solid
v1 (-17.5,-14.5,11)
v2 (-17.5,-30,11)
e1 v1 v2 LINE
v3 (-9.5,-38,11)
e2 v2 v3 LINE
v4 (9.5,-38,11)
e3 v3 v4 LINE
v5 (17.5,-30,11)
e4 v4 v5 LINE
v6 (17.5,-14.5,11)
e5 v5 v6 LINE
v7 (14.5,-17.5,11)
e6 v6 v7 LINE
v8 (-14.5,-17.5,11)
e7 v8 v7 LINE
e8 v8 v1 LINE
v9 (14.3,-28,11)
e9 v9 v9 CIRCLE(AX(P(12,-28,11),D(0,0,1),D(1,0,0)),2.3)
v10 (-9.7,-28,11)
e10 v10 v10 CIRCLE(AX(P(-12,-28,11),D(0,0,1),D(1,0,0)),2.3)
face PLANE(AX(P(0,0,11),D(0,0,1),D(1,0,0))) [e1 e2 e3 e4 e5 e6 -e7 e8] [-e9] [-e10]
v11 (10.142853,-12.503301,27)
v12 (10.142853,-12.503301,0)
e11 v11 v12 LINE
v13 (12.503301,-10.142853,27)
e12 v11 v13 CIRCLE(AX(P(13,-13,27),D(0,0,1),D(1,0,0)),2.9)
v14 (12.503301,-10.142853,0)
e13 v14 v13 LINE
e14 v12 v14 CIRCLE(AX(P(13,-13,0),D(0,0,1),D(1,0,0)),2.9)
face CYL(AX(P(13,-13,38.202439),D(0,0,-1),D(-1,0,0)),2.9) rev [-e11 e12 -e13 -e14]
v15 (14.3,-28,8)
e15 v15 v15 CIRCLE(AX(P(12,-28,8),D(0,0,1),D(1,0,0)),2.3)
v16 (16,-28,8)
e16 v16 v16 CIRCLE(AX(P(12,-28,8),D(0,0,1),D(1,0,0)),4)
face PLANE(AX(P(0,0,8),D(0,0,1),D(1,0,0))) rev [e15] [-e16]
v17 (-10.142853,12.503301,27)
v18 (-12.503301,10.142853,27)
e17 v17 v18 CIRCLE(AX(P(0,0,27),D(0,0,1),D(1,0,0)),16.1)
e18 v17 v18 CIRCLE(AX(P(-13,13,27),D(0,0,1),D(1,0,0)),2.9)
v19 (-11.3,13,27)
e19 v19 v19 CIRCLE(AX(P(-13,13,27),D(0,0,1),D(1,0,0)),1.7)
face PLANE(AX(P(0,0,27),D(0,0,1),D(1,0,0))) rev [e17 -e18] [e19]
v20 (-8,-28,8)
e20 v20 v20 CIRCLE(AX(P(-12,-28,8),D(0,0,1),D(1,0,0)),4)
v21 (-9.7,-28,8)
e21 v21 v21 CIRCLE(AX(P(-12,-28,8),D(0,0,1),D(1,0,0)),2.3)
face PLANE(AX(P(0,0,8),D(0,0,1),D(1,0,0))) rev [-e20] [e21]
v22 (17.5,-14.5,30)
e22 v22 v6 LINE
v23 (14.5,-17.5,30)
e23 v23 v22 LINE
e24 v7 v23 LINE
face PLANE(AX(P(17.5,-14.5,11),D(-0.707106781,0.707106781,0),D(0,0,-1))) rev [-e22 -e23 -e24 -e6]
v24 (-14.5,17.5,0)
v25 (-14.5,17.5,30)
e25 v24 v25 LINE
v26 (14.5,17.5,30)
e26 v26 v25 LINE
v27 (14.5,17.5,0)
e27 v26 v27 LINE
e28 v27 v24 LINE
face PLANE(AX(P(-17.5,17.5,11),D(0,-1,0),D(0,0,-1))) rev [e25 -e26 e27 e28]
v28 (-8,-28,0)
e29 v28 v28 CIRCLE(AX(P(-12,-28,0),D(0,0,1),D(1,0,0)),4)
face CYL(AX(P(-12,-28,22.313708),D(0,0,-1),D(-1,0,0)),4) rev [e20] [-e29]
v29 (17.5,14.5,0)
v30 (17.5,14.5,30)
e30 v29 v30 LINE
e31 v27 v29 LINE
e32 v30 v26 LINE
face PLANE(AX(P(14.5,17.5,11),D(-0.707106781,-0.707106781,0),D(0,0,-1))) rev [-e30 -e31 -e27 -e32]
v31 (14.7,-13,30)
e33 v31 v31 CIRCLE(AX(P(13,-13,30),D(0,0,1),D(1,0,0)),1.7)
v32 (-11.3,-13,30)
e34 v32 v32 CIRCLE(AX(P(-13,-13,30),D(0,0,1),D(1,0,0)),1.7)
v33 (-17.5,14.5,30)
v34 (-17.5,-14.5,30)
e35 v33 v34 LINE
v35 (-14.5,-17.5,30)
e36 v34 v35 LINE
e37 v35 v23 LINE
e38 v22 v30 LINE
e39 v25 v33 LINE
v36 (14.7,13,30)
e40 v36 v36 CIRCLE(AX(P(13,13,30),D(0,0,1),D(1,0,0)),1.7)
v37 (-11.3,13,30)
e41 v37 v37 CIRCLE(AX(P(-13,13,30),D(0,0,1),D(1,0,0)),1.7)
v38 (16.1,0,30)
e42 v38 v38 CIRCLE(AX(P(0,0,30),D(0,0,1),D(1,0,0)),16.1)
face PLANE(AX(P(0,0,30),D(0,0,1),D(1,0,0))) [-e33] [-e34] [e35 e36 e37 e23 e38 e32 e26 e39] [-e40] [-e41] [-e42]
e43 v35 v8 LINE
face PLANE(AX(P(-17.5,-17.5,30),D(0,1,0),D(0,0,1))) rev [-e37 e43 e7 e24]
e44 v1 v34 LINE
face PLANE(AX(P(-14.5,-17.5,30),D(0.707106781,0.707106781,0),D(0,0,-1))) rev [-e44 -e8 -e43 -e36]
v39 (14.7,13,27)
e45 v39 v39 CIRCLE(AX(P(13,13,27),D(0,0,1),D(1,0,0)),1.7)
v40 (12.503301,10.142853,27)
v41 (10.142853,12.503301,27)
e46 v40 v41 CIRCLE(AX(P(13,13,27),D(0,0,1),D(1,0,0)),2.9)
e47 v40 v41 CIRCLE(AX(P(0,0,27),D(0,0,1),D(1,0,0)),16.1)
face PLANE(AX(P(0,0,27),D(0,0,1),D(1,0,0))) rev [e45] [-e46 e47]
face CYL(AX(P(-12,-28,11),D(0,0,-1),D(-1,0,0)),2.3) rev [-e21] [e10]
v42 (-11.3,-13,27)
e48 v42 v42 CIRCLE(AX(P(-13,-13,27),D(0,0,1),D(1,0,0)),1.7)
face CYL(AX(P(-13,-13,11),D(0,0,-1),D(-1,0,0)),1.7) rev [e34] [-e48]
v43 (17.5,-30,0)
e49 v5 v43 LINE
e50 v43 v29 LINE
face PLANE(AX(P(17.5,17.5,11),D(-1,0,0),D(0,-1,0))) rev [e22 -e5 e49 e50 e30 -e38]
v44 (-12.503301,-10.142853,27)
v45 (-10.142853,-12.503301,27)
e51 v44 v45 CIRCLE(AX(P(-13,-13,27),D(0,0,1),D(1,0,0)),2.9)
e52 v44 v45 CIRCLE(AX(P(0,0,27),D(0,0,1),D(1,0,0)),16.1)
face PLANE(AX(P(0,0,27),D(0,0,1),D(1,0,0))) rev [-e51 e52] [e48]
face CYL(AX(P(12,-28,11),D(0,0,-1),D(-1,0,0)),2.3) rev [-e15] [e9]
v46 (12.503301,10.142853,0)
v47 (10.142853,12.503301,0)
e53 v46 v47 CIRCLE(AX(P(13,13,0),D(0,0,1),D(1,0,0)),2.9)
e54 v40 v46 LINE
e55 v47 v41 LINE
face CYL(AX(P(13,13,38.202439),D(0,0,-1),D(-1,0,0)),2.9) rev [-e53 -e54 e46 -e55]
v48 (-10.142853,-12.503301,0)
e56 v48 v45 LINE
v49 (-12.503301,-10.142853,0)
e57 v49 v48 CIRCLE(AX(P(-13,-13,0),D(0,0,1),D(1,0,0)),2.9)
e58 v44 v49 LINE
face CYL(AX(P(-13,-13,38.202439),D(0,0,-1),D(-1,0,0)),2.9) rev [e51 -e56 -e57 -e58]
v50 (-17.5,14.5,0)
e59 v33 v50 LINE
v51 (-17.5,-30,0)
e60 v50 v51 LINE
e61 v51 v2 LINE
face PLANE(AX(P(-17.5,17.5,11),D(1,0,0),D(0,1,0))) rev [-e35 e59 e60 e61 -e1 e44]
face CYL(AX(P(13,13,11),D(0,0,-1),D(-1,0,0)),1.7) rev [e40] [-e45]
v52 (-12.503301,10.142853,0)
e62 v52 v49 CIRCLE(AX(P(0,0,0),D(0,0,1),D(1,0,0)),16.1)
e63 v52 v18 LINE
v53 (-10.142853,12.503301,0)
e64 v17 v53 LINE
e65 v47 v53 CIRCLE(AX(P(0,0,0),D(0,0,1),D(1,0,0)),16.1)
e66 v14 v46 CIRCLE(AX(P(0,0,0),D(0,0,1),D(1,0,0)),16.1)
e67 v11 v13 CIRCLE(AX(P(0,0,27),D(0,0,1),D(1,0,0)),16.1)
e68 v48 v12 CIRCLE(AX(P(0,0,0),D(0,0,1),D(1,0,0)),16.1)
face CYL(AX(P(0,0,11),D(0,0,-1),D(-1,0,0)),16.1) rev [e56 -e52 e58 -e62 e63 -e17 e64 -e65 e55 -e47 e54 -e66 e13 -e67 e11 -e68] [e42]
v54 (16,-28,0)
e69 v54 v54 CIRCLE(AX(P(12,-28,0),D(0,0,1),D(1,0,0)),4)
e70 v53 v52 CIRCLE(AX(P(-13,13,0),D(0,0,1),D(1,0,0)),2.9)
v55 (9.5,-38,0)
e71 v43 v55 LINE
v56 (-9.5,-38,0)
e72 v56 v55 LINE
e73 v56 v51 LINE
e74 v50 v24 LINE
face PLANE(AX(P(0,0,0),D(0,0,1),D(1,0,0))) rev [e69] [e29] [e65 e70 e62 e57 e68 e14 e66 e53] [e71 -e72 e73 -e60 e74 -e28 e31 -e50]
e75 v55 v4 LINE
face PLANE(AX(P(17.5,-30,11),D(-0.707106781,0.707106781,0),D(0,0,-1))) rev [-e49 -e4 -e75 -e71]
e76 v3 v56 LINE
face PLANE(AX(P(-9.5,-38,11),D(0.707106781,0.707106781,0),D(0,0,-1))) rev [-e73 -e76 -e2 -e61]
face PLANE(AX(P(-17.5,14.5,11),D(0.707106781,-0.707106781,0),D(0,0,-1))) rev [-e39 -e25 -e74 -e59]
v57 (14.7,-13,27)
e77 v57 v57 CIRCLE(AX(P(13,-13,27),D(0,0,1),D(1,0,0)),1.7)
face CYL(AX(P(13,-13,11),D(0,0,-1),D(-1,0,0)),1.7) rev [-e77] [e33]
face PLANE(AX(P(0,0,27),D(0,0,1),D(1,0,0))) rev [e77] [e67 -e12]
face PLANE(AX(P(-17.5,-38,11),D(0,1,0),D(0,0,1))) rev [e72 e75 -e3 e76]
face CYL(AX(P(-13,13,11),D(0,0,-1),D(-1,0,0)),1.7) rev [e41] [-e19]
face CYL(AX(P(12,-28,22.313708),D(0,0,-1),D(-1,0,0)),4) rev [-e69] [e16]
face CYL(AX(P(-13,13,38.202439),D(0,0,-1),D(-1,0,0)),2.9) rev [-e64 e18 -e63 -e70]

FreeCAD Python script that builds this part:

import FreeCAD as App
import Part
import Sketcher
from FreeCAD import Vector
Q = App.Units.Quantity


def edges_at(feature, points):
    """Names of the edges that pass closest to the given points."""
    edges = feature.Shape.Edges
    near = lambda p: min(range(len(edges)), key=lambda i: edges[i].distToShape(Part.Vertex(*p))[0])
    return sorted({f"Edge{near(p) + 1}" for p in points})


def add_polygon(sketch, points):
    """Adds a closed chain of lines whose ends are joined by coincident constraints."""
    first, n = sketch.GeometryCount, len(points)
    for a, b in zip(points, points[1:] + points[:1]):
        sketch.addGeometry(Part.LineSegment(App.Vector(*a, 0), App.Vector(*b, 0)), False)
    for i in range(n):
        sketch.addConstraint(Sketcher.Constraint("Coincident", first + i, 2, first + (i + 1) % n, 1))

doc = App.newDocument("Part")
body = doc.addObject("PartDesign::Body", "Body")

# Sketch on XY plane
sketch1 = doc.addObject("Sketcher::SketchObject", "Sketch")
body.addObject(sketch1)
sketch1.AttachmentSupport = (doc.XY_Plane, [""])
sketch1.MapMode = "FlatFace"
add_polygon(sketch1, [(-17.5, 17.5), (-17.5, -38), (17.5, -38), (17.5, 17.5)])  # lines 0-3
sketch1.addGeometry(Part.Circle(Vector(-12, -28, 0), Vector(0, 0, 1), 2.3), False)  # 4
sketch1.addGeometry(Part.Circle(Vector(-13, -13, 0), Vector(0, 0, 1), 1.7), False)  # 5
sketch1.addGeometry(Part.Circle(Vector(12, -28, 0), Vector(0, 0, 1), 2.3), False)  # 6
sketch1.addGeometry(Part.Circle(Vector(13, -13, 0), Vector(0, 0, 1), 1.7), False)  # 7
sketch1.addGeometry(Part.Circle(Vector(-13, 13, 0), Vector(0, 0, 1), 1.7), False)  # 8
sketch1.addGeometry(Part.Circle(Vector(0, 0, 0), Vector(0, 0, 1), 16.1), False)  # 9
sketch1.addGeometry(Part.Circle(Vector(13, 13, 0), Vector(0, 0, 1), 1.7), False)  # 10
sketch1.addConstraint([
    Sketcher.Constraint("Vertical", 0),
    Sketcher.Constraint("Horizontal", 1),
    Sketcher.Constraint("Vertical", 2),
    Sketcher.Constraint("Horizontal", 3),
    Sketcher.Constraint("Coincident", 9, 3, -1, 1),
    Sketcher.Constraint("Equal", 4, 6),
    Sketcher.Constraint("Equal", 5, 7),
    Sketcher.Constraint("Equal", 7, 8),
    Sketcher.Constraint("Equal", 8, 10),
    Sketcher.Constraint("Symmetric", 7, 3, 8, 3, -1, 1),
    Sketcher.Constraint("Symmetric", 5, 3, 10, 3, -1, 1),
    Sketcher.Constraint("Symmetric", 4, 3, 6, 3, -2),
    Sketcher.Constraint("Symmetric", 5, 3, 7, 3, -2),
    Sketcher.Constraint("Diameter", 4, Q("4.6 mm")),
    Sketcher.Constraint("Diameter", 5, Q("3.4 mm")),
    Sketcher.Constraint("Diameter", 9, Q("32.2 mm")),
    Sketcher.Constraint("DistanceX", 1, 1, 1, 2, Q("35 mm")),
    Sketcher.Constraint("DistanceY", 0, 2, 0, 1, Q("55.5 mm")),
    Sketcher.Constraint("DistanceX", 4, 3, -1, 1, Q("12 mm")),
    Sketcher.Constraint("DistanceY", 4, 3, -1, 1, Q("28 mm")),
    Sketcher.Constraint("DistanceX", 5, 3, -1, 1, Q("13 mm")),
    Sketcher.Constraint("DistanceY", 5, 3, -1, 1, Q("13 mm")),
    Sketcher.Constraint("DistanceY", 0, 2, -1, 1, Q("38 mm")),
    Sketcher.Constraint("DistanceX", 0, 2, -1, 1, Q("17.5 mm")),
])
pad1 = doc.addObject("PartDesign::Pad", "Pad")
body.addObject(pad1)
pad1.Profile = sketch1
pad1.Length = 11

# Sketch on XY plane
sketch2 = doc.addObject("Sketcher::SketchObject", "Sketch001")
body.addObject(sketch2)
sketch2.AttachmentSupport = (doc.XY_Plane, [""])
sketch2.MapMode = "FlatFace"
sketch2.AttachmentOffset = App.Placement(Vector(0, 0, 11), App.Rotation())
add_polygon(sketch2, [(-17.5, 17.5), (-17.5, -17.5), (17.5, -17.5), (17.5, 17.5)])  # lines 0-3
sketch2.addGeometry(Part.Circle(Vector(-13, -13, 0), Vector(0, 0, 1), 1.7), False)  # 4
sketch2.addGeometry(Part.Circle(Vector(13, -13, 0), Vector(0, 0, 1), 1.7), False)  # 5
sketch2.addGeometry(Part.Circle(Vector(-13, 13, 0), Vector(0, 0, 1), 1.7), False)  # 6
sketch2.addGeometry(Part.Circle(Vector(0, 0, 0), Vector(0, 0, 1), 16.1), False)  # 7
sketch2.addGeometry(Part.Circle(Vector(13, 13, 0), Vector(0, 0, 1), 1.7), False)  # 8
sketch2.addConstraint([
    Sketcher.Constraint("Vertical", 0),
    Sketcher.Constraint("Horizontal", 1),
    Sketcher.Constraint("Vertical", 2),
    Sketcher.Constraint("Horizontal", 3),
    Sketcher.Constraint("Coincident", 7, 3, -1, 1),
    Sketcher.Constraint("Equal", 4, 5),
    Sketcher.Constraint("Equal", 5, 6),
    Sketcher.Constraint("Equal", 6, 8),
    Sketcher.Constraint("Symmetric", 5, 3, 6, 3, -1, 1),
    Sketcher.Constraint("Symmetric", 4, 3, 8, 3, -1, 1),
    Sketcher.Constraint("Symmetric", 0, 2, 2, 2, -1, 1),
    Sketcher.Constraint("Symmetric", 4, 3, 5, 3, -2),
    Sketcher.Constraint("Equal", 3, 0),
    Sketcher.Constraint("Diameter", 4, Q("3.4 mm")),
    Sketcher.Constraint("Diameter", 7, Q("32.2 mm")),
    Sketcher.Constraint("DistanceX", 1, 1, 1, 2, Q("35 mm")),
    Sketcher.Constraint("DistanceX", 4, 3, -1, 1, Q("13 mm")),
    Sketcher.Constraint("DistanceY", 4, 3, -1, 1, Q("13 mm")),
])
pad2 = doc.addObject("PartDesign::Pad", "Pad001")
body.addObject(pad2)
pad2.Profile = sketch2
pad2.Length = 19

# Sketch on XY plane
sketch3 = doc.addObject("Sketcher::SketchObject", "Sketch002")
body.addObject(sketch3)
sketch3.AttachmentSupport = (doc.XY_Plane, [""])
sketch3.MapMode = "FlatFace"
sketch3.addGeometry([
    Part.Circle(Vector(-12, -28, 0), Vector(0, 0, 1), 4),
    Part.Circle(Vector(12, -28, 0), Vector(0, 0, 1), 4),
], False)
sketch3.addConstraint([
    Sketcher.Constraint("Equal", 0, 1),
    Sketcher.Constraint("Symmetric", 0, 3, 1, 3, -2),
    Sketcher.Constraint("Diameter", 0, Q("8 mm")),
    Sketcher.Constraint("DistanceX", 0, 3, -1, 1, Q("12 mm")),
    Sketcher.Constraint("DistanceY", 0, 3, -1, 1, Q("28 mm")),
])
pocket1 = doc.addObject("PartDesign::Pocket", "Pocket")
body.addObject(pocket1)
pocket1.Profile = sketch3
pocket1.Length = 8
pocket1.Reversed = True

# Sketch on XY plane
sketch4 = doc.addObject("Sketcher::SketchObject", "Sketch003")
body.addObject(sketch4)
sketch4.AttachmentSupport = (doc.XY_Plane, [""])
sketch4.MapMode = "FlatFace"
sketch4.addGeometry([
    Part.Circle(Vector(-13, 13, 0), Vector(0, 0, 1), 2.9),
    Part.Circle(Vector(13, 13, 0), Vector(0, 0, 1), 2.9),
    Part.Circle(Vector(-13, -13, 0), Vector(0, 0, 1), 2.9),
    Part.Circle(Vector(13, -13, 0), Vector(0, 0, 1), 2.9),
], False)
sketch4.addConstraint([
    Sketcher.Constraint("Equal", 0, 1),
    Sketcher.Constraint("Equal", 1, 2),
    Sketcher.Constraint("Equal", 2, 3),
    Sketcher.Constraint("Symmetric", 1, 3, 2, 3, -1, 1),
    Sketcher.Constraint("Symmetric", 0, 3, 3, 3, -1, 1),
    Sketcher.Constraint("Symmetric", 0, 3, 1, 3, -2),
    Sketcher.Constraint("Diameter", 0, Q("5.8 mm")),
    Sketcher.Constraint("DistanceX", 0, 3, -1, 1, Q("13 mm")),
    Sketcher.Constraint("DistanceY", -1, 1, 0, 3, Q("13 mm")),
])
pocket2 = doc.addObject("PartDesign::Pocket", "Pocket001")
body.addObject(pocket2)
pocket2.Profile = sketch4
pocket2.Length = 27
pocket2.Reversed = True
doc.recompute()

chamfer = doc.addObject("PartDesign::Chamfer", "Chamfer")
body.addObject(chamfer)
chamfer.Base = (pocket2, edges_at(pocket2, [
    (-17.5, -17.5, 20.5),
    (17.5, -17.5, 20.5),
    (-17.5, 17.5, 15),
    (17.5, 17.5, 15),
]))
chamfer.Size = 3
doc.recompute()

chamfer2 = doc.addObject("PartDesign::Chamfer", "Chamfer001")
body.addObject(chamfer2)
chamfer2.Base = (chamfer, edges_at(chamfer, [(17.5, -38, 5.5), (-17.5, -38, 5.5)]))
chamfer2.Size = 8

doc.recompute()
